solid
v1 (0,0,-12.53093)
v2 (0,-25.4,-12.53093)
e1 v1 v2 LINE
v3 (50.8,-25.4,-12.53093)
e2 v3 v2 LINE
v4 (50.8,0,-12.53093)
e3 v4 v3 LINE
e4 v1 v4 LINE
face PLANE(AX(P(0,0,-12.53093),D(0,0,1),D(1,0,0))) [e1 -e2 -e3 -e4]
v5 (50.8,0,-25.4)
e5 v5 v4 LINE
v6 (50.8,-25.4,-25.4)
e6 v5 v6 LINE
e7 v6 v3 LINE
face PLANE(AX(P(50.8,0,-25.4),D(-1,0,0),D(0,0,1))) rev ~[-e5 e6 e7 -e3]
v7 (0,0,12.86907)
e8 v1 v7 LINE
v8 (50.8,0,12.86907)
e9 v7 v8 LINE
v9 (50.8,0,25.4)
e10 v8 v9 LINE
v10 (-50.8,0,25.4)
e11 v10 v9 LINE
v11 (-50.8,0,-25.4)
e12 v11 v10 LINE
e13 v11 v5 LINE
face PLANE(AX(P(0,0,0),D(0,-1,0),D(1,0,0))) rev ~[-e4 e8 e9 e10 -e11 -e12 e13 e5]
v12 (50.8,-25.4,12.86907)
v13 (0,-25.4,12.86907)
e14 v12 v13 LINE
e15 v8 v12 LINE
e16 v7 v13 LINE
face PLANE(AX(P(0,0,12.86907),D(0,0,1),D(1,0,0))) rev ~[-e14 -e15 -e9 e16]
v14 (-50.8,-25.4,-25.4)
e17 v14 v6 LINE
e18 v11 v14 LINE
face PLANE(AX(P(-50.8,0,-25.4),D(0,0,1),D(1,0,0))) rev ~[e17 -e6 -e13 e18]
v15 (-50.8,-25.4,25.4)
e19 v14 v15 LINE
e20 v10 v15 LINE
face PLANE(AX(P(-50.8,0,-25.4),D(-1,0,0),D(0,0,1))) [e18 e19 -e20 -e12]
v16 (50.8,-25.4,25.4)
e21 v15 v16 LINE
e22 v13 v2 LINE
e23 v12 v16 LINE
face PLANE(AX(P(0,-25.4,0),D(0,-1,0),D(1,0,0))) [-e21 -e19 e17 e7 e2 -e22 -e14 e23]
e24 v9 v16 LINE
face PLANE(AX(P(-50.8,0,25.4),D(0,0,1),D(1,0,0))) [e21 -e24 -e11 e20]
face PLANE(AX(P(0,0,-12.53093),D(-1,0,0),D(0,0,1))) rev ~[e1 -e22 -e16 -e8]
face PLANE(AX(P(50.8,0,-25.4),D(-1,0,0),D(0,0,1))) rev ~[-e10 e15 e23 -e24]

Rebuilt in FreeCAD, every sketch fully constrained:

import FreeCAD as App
import Part
import Sketcher
Q = App.Units.Quantity


def add_polygon(sketch, points):
    """Adds a closed chain of lines whose ends are joined by coincident constraints."""
    first, n = sketch.GeometryCount, len(points)
    for a, b in zip(points, points[1:] + points[:1]):
        sketch.addGeometry(Part.LineSegment(App.Vector(*a, 0), App.Vector(*b, 0)), False)
    for i in range(n):
        sketch.addConstraint(Sketcher.Constraint("Coincident", first + i, 2, first + (i + 1) % n, 1))

doc = App.newDocument("Part")
body = doc.addObject("PartDesign::Body", "Body")

# Sketch on XZ plane
sketch1 = doc.addObject("Sketcher::SketchObject", "Sketch")
body.addObject(sketch1)
sketch1.AttachmentSupport = (doc.XZ_Plane, [""])
sketch1.MapMode = "FlatFace"
add_polygon(sketch1, [(-51, 25), (-51, -25), (51, -25), (51, 25)])  # lines 0-3
sketch1.addConstraint(Sketcher.Constraint("Vertical", 0))
sketch1.addConstraint(Sketcher.Constraint("Horizontal", 1))
sketch1.addConstraint(Sketcher.Constraint("Vertical", 2))
sketch1.addConstraint(Sketcher.Constraint("Horizontal", 3))
sketch1.addConstraint(Sketcher.Constraint("Symmetric", 0, 2, 2, 2, -1, 1))
sketch1.addConstraint(Sketcher.Constraint("DistanceX", 1, 1, 1, 2, Q("4 in")))
sketch1.addConstraint(Sketcher.Constraint("DistanceY", 0, 2, 0, 1, Q("2 in")))
pad1 = doc.addObject("PartDesign::Pad", "Pad")
body.addObject(pad1)
pad1.Profile = sketch1
pad1.Length = Q("1 in")

# Sketch on XZ plane
sketch2 = doc.addObject("Sketcher::SketchObject", "Sketch001")
body.addObject(sketch2)
sketch2.AttachmentSupport = (doc.XZ_Plane, [""])
sketch2.MapMode = "FlatFace"
add_polygon(sketch2, [(0, 13), (0, -13), (51, -13), (51, 13)])  # lines 0-3
sketch2.addConstraint(Sketcher.Constraint("Vertical", 0))
sketch2.addConstraint(Sketcher.Constraint("Horizontal", 1))
sketch2.addConstraint(Sketcher.Constraint("Vertical", 2))
sketch2.addConstraint(Sketcher.Constraint("Horizontal", 3))
sketch2.addConstraint(Sketcher.Constraint("PointOnObject", 0, 2, -2))
sketch2.addConstraint(Sketcher.Constraint("DistanceX", 1, 1, 1, 2, Q("2 in")))
sketch2.addConstraint(Sketcher.Constraint("DistanceY", 0, 2, 0, 1, Q("1 in")))
sketch2.addConstraint(Sketcher.Constraint("DistanceY", 0, 2, -1, 1, 12.53093))
pocket1 = doc.addObject("PartDesign::Pocket", "Pocket")
body.addObject(pocket1)
pocket1.Profile = sketch2
pocket1.Type = "ThroughAll"
pocket1.Reversed = True

doc.recompute()
